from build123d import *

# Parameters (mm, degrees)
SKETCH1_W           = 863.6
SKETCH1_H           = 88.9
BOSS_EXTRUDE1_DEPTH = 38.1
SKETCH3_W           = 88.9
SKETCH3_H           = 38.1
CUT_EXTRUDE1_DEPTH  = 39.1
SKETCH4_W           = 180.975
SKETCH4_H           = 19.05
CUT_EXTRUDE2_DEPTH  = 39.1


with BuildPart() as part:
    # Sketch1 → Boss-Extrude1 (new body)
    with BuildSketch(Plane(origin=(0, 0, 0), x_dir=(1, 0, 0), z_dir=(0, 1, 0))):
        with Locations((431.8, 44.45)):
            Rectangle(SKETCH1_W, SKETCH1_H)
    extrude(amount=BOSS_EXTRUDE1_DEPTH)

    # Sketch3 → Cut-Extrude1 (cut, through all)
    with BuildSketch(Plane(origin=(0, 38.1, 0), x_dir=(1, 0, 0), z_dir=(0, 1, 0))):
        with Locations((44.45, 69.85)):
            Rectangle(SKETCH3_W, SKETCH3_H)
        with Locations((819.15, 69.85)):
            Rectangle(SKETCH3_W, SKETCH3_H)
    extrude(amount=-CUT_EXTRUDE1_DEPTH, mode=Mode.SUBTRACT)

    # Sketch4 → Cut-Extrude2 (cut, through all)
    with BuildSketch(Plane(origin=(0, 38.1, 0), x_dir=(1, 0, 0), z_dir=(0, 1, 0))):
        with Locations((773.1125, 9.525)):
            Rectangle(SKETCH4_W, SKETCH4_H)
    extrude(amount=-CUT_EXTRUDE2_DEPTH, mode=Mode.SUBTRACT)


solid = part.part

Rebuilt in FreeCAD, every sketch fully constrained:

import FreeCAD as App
import Part
import Sketcher
Q = App.Units.Quantity

doc = App.newDocument("Part")
params = doc.addObject("Spreadsheet::Sheet", "Params")
for row, (alias, value) in enumerate([
    ("sketch1_width", "34 in"),
    ("sketch1_height", "3.5 in"),
    ("pad1_length", "1.5 in"),
    ("sketch2_width", "3.5 in"),
    ("sketch2_height", "1.5 in"),
    ("sketch3_height", "0.75 in"),
    ("sketch3_width", "7.125 in"),
], start=1):
    params.set(f"A{row}", alias)
    params.set(f"B{row}", "=" + value)
    params.setAlias(f"B{row}", alias)

body = doc.addObject("PartDesign::Body", "Body")

# Sketch on XZ plane
sketch1 = body.newObject("Sketcher::SketchObject", "Sketch")
sketch1.AttachmentSupport = (doc.getObject("XZ_Plane"), [""])
sketch1.MapMode = "FlatFace"
sketch1.addGeometry(Part.LineSegment(App.Vector(0, -89, 0), App.Vector(0, 0, 0)), False)
sketch1.addGeometry(Part.LineSegment(App.Vector(0, 0, 0), App.Vector(864, 0, 0)), False)
sketch1.addGeometry(Part.LineSegment(App.Vector(864, 0, 0), App.Vector(864, -89, 0)), False)
sketch1.addGeometry(Part.LineSegment(App.Vector(864, -89, 0), App.Vector(0, -89, 0)), False)
sketch1.addConstraint(Sketcher.Constraint("Coincident", 0, 2, 1, 1))
sketch1.addConstraint(Sketcher.Constraint("Coincident", 1, 2, 2, 1))
sketch1.addConstraint(Sketcher.Constraint("Coincident", 2, 2, 3, 1))
sketch1.addConstraint(Sketcher.Constraint("Coincident", 3, 2, 0, 1))
sketch1.addConstraint(Sketcher.Constraint("Vertical", 0))
sketch1.addConstraint(Sketcher.Constraint("Horizontal", 1))
sketch1.addConstraint(Sketcher.Constraint("Vertical", 2))
sketch1.addConstraint(Sketcher.Constraint("Horizontal", 3))
sketch1.addConstraint(Sketcher.Constraint("Coincident", 0, 2, -1, 1))
sketch1.addConstraint(Sketcher.Constraint("DistanceX", 1, 1, 1, 2, Q("34 in")))
sketch1.addConstraint(Sketcher.Constraint("DistanceY", 0, 1, 0, 2, Q("3.5 in")))
sketch1.setExpression("Constraints[9]", "Params.sketch1_width")
sketch1.setExpression("Constraints[10]", "Params.sketch1_height")
pad1 = body.newObject("PartDesign::Pad", "Pad")
pad1.Profile = sketch1
pad1.setExpression("Length", "Params.pad1_length")
pad1.Reversed = True

# Sketch on XZ plane
sketch2 = body.newObject("Sketcher::SketchObject", "Sketch001")
sketch2.AttachmentSupport = (doc.getObject("XZ_Plane"), [""])
sketch2.MapMode = "FlatFace"
sketch2.AttachmentOffset = App.Placement(App.Vector(0, 0, -1.5 * 25.4), App.Rotation())
sketch2.addGeometry(Part.LineSegment(App.Vector(0, -89, 0), App.Vector(0, -51, 0)), False)
sketch2.addGeometry(Part.LineSegment(App.Vector(0, -51, 0), App.Vector(89, -51, 0)), False)
sketch2.addGeometry(Part.LineSegment(App.Vector(89, -51, 0), App.Vector(89, -89, 0)), False)
sketch2.addGeometry(Part.LineSegment(App.Vector(89, -89, 0), App.Vector(0, -89, 0)), False)
sketch2.addGeometry(Part.LineSegment(App.Vector(775, -89, 0), App.Vector(775, -51, 0)), False)
sketch2.addGeometry(Part.LineSegment(App.Vector(775, -51, 0), App.Vector(864, -51, 0)), False)
sketch2.addGeometry(Part.LineSegment(App.Vector(864, -51, 0), App.Vector(864, -89, 0)), False)
sketch2.addGeometry(Part.LineSegment(App.Vector(864, -89, 0), App.Vector(775, -89, 0)), False)
sketch2.addConstraint(Sketcher.Constraint("Coincident", 0, 2, 1, 1))
sketch2.addConstraint(Sketcher.Constraint("Coincident", 1, 2, 2, 1))
sketch2.addConstraint(Sketcher.Constraint("Coincident", 2, 2, 3, 1))
sketch2.addConstraint(Sketcher.Constraint("Coincident", 3, 2, 0, 1))
sketch2.addConstraint(Sketcher.Constraint("Coincident", 4, 2, 5, 1))
sketch2.addConstraint(Sketcher.Constraint("Coincident", 5, 2, 6, 1))
sketch2.addConstraint(Sketcher.Constraint("Coincident", 6, 2, 7, 1))
sketch2.addConstraint(Sketcher.Constraint("Coincident", 7, 2, 4, 1))
sketch2.addConstraint(Sketcher.Constraint("Vertical", 0))
sketch2.addConstraint(Sketcher.Constraint("Horizontal", 1))
sketch2.addConstraint(Sketcher.Constraint("Vertical", 2))
sketch2.addConstraint(Sketcher.Constraint("Horizontal", 3))
sketch2.addConstraint(Sketcher.Constraint("Vertical", 4))
sketch2.addConstraint(Sketcher.Constraint("Horizontal", 5))
sketch2.addConstraint(Sketcher.Constraint("Vertical", 6))
sketch2.addConstraint(Sketcher.Constraint("Horizontal", 7))
sketch2.addConstraint(Sketcher.Constraint("PointOnObject", 0, 2, -2))
sketch2.addConstraint(Sketcher.Constraint("Horizontal", 1, 2, 4, 2))
sketch2.addConstraint(Sketcher.Constraint("Horizontal", 3, 2, 6, 2))
sketch2.addConstraint(Sketcher.Constraint("Equal", 3, 5))
sketch2.addConstraint(Sketcher.Constraint("DistanceX", 1, 1, 1, 2, Q("3.5 in")))
sketch2.addConstraint(Sketcher.Constraint("DistanceY", 0, 1, 0, 2, Q("1.5 in")))
sketch2.addConstraint(Sketcher.Constraint("DistanceY", 0, 2, -1, 1, Q("2 in")))
sketch2.addConstraint(Sketcher.Constraint("DistanceX", -1, 1, 5, 2, Q("34 in")))
sketch2.setExpression("Constraints[20]", "Params.sketch2_width")
sketch2.setExpression("Constraints[21]", "Params.sketch2_height")
pocket1 = body.newObject("PartDesign::Pocket", "Pocket")
pocket1.Profile = sketch2
pocket1.Type = "ThroughAll"
pocket1.Reversed = True

# Sketch on XZ plane
sketch3 = body.newObject("Sketcher::SketchObject", "Sketch002")
sketch3.AttachmentSupport = (doc.getObject("XZ_Plane"), [""])
sketch3.MapMode = "FlatFace"
sketch3.AttachmentOffset = App.Placement(App.Vector(0, 0, -1.5 * 25.4), App.Rotation())
sketch3.addGeometry(Part.LineSegment(App.Vector(683, -19, 0), App.Vector(683, 0, 0)), False)
sketch3.addGeometry(Part.LineSegment(App.Vector(683, 0, 0), App.Vector(864, 0, 0)), False)
sketch3.addGeometry(Part.LineSegment(App.Vector(864, 0, 0), App.Vector(864, -19, 0)), False)
sketch3.addGeometry(Part.LineSegment(App.Vector(864, -19, 0), App.Vector(683, -19, 0)), False)
sketch3.addConstraint(Sketcher.Constraint("Coincident", 0, 2, 1, 1))
sketch3.addConstraint(Sketcher.Constraint("Coincident", 1, 2, 2, 1))
sketch3.addConstraint(Sketcher.Constraint("Coincident", 2, 2, 3, 1))
sketch3.addConstraint(Sketcher.Constraint("Coincident", 3, 2, 0, 1))
sketch3.addConstraint(Sketcher.Constraint("Vertical", 0))
sketch3.addConstraint(Sketcher.Constraint("Horizontal", 1))
sketch3.addConstraint(Sketcher.Constraint("Vertical", 2))
sketch3.addConstraint(Sketcher.Constraint("Horizontal", 3))
sketch3.addConstraint(Sketcher.Constraint("PointOnObject", 0, 2, -1))
sketch3.addConstraint(Sketcher.Constraint("DistanceX", -1, 1, 1, 2, Q("34 in")))
sketch3.addConstraint(Sketcher.Constraint("DistanceY", 0, 1, 0, 2, Q("0.75 in")))
sketch3.addConstraint(Sketcher.Constraint("DistanceX", 1, 1, 1, 2, Q("7.125 in")))
sketch3.setExpression("Constraints[10]", "Params.sketch3_height")
sketch3.setExpression("Constraints[11]", "Params.sketch3_width")
pocket2 = body.newObject("PartDesign::Pocket", "Pocket001")
pocket2.Profile = sketch3
pocket2.Type = "ThroughAll"
pocket2.Reversed = True

doc.recompute()
